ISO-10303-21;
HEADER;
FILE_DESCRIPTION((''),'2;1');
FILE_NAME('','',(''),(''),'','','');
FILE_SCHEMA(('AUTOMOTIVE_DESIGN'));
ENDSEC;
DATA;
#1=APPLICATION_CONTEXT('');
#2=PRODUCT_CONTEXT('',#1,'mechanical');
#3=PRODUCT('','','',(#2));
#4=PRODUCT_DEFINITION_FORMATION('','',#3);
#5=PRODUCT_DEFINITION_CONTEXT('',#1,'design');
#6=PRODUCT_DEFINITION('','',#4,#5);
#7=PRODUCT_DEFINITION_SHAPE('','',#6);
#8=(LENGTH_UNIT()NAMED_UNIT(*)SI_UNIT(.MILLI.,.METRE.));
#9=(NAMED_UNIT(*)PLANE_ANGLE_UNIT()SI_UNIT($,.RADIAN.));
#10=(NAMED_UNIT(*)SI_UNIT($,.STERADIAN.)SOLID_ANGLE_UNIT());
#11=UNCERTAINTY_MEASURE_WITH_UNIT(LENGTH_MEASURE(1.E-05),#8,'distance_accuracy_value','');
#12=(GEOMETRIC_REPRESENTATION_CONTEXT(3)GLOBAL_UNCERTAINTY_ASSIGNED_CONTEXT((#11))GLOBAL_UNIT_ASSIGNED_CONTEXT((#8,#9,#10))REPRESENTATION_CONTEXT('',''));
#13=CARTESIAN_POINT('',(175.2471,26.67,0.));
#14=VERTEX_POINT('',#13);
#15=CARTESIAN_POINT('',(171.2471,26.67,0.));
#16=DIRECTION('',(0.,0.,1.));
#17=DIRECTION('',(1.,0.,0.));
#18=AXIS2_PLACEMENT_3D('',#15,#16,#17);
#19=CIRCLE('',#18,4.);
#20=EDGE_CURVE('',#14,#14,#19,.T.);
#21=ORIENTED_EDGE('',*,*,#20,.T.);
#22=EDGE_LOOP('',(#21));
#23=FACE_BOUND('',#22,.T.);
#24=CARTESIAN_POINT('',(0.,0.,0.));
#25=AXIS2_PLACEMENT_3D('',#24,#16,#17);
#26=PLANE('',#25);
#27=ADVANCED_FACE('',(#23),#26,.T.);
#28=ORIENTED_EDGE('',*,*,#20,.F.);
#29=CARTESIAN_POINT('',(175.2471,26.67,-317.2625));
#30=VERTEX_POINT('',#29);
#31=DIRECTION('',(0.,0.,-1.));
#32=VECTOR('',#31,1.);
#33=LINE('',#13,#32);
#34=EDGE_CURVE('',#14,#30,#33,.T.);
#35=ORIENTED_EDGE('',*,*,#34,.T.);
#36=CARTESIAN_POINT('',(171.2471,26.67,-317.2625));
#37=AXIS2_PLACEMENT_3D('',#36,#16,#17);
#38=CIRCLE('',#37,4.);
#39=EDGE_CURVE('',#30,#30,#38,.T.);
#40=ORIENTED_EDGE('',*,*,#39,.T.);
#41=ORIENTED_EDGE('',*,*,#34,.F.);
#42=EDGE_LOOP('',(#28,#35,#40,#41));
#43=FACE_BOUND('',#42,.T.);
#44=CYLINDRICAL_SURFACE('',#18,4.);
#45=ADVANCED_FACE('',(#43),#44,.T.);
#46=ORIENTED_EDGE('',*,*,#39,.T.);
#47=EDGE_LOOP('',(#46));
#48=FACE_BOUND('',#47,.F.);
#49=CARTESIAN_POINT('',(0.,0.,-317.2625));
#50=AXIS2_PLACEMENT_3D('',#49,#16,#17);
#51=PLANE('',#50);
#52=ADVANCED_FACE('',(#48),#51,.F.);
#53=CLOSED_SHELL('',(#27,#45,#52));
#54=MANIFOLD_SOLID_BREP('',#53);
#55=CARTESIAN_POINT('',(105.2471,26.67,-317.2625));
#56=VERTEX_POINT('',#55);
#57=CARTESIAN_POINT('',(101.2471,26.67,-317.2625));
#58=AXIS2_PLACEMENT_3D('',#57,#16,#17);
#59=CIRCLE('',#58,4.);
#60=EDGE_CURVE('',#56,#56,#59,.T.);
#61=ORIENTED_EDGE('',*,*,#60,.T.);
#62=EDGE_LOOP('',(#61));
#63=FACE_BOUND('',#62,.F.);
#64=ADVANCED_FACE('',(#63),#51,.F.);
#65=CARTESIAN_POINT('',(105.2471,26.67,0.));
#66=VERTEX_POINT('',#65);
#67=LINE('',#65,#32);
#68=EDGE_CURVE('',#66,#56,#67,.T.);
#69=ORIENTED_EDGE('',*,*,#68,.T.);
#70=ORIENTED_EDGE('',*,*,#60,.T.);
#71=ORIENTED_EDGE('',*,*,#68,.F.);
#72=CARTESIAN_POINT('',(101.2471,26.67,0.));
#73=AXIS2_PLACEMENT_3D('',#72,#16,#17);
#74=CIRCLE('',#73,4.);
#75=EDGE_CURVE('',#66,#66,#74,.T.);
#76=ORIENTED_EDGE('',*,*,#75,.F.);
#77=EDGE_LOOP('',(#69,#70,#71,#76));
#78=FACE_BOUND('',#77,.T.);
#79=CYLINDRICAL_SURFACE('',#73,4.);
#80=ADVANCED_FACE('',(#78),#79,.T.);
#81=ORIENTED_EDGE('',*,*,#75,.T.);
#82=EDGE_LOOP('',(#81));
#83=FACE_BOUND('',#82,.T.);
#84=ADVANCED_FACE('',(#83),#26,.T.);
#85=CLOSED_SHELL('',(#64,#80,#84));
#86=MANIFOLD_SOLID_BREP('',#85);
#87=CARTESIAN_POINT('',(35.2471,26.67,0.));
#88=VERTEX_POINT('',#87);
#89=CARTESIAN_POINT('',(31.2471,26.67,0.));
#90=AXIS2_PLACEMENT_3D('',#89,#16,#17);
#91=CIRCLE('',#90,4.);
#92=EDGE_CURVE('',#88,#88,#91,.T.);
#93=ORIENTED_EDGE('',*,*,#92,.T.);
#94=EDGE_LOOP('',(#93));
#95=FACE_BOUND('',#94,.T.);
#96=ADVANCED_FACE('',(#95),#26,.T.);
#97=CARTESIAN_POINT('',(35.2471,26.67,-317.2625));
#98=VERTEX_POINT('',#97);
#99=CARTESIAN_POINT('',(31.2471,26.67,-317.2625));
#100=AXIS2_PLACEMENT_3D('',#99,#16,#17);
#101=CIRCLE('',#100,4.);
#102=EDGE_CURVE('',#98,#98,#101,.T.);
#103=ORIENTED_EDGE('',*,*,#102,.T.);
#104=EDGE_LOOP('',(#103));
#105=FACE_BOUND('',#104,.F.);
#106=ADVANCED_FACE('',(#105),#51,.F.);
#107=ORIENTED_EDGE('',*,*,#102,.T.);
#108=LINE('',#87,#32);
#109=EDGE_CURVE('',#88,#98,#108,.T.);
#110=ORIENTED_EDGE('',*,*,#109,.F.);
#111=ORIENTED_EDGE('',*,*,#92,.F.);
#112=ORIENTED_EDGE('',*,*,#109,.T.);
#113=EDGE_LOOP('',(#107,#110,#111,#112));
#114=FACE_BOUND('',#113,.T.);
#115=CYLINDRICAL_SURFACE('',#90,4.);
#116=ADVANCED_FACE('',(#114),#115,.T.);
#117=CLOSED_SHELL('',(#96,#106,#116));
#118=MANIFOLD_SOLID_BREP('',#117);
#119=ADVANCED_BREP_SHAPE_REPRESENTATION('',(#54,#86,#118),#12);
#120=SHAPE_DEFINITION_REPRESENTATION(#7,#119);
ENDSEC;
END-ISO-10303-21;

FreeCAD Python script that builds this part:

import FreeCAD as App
import Part
import Sketcher
from FreeCAD import Vector

doc = App.newDocument("Part")
body = doc.addObject("PartDesign::Body", "Body")
body.AllowCompound = True

# Sketch on XY plane
sketch1 = body.newObject("Sketcher::SketchObject", "Sketch")
sketch1.AttachmentSupport = (doc.getObject("XY_Plane"), [""])
sketch1.MapMode = "FlatFace"
sketch1.addGeometry([
    Part.Circle(Vector(31.2, 26.7, 0), Vector(0, 0, 1), 4),
    Part.Circle(Vector(171.2, 26.7, 0), Vector(0, 0, 1), 4),
    Part.Circle(Vector(101.2, 26.7, 0), Vector(0, 0, 1), 4),
], False)
sketch1.addConstraint([
    Sketcher.Constraint("Equal", 0, 1),
    Sketcher.Constraint("Equal", 1, 2),
    Sketcher.Constraint("Horizontal", 0, 3, 1, 3),
    Sketcher.Constraint("Horizontal", 1, 3, 2, 3),
    Sketcher.Constraint("Diameter", 0, 8.0),
    Sketcher.Constraint("DistanceX", 0, 3, 1, 3, 140.0),
    Sketcher.Constraint("DistanceX", 2, 3, 1, 3, 70.0),
    Sketcher.Constraint("DistanceY", -1, 1, 0, 3, 26.67),
    Sketcher.Constraint("DistanceX", -1, 1, 0, 3, 31.247),
])
pad1 = body.newObject("PartDesign::Pad", "Pad")
pad1.Profile = sketch1
pad1.Length = 317.2625
pad1.Reversed = True

doc.recompute()
